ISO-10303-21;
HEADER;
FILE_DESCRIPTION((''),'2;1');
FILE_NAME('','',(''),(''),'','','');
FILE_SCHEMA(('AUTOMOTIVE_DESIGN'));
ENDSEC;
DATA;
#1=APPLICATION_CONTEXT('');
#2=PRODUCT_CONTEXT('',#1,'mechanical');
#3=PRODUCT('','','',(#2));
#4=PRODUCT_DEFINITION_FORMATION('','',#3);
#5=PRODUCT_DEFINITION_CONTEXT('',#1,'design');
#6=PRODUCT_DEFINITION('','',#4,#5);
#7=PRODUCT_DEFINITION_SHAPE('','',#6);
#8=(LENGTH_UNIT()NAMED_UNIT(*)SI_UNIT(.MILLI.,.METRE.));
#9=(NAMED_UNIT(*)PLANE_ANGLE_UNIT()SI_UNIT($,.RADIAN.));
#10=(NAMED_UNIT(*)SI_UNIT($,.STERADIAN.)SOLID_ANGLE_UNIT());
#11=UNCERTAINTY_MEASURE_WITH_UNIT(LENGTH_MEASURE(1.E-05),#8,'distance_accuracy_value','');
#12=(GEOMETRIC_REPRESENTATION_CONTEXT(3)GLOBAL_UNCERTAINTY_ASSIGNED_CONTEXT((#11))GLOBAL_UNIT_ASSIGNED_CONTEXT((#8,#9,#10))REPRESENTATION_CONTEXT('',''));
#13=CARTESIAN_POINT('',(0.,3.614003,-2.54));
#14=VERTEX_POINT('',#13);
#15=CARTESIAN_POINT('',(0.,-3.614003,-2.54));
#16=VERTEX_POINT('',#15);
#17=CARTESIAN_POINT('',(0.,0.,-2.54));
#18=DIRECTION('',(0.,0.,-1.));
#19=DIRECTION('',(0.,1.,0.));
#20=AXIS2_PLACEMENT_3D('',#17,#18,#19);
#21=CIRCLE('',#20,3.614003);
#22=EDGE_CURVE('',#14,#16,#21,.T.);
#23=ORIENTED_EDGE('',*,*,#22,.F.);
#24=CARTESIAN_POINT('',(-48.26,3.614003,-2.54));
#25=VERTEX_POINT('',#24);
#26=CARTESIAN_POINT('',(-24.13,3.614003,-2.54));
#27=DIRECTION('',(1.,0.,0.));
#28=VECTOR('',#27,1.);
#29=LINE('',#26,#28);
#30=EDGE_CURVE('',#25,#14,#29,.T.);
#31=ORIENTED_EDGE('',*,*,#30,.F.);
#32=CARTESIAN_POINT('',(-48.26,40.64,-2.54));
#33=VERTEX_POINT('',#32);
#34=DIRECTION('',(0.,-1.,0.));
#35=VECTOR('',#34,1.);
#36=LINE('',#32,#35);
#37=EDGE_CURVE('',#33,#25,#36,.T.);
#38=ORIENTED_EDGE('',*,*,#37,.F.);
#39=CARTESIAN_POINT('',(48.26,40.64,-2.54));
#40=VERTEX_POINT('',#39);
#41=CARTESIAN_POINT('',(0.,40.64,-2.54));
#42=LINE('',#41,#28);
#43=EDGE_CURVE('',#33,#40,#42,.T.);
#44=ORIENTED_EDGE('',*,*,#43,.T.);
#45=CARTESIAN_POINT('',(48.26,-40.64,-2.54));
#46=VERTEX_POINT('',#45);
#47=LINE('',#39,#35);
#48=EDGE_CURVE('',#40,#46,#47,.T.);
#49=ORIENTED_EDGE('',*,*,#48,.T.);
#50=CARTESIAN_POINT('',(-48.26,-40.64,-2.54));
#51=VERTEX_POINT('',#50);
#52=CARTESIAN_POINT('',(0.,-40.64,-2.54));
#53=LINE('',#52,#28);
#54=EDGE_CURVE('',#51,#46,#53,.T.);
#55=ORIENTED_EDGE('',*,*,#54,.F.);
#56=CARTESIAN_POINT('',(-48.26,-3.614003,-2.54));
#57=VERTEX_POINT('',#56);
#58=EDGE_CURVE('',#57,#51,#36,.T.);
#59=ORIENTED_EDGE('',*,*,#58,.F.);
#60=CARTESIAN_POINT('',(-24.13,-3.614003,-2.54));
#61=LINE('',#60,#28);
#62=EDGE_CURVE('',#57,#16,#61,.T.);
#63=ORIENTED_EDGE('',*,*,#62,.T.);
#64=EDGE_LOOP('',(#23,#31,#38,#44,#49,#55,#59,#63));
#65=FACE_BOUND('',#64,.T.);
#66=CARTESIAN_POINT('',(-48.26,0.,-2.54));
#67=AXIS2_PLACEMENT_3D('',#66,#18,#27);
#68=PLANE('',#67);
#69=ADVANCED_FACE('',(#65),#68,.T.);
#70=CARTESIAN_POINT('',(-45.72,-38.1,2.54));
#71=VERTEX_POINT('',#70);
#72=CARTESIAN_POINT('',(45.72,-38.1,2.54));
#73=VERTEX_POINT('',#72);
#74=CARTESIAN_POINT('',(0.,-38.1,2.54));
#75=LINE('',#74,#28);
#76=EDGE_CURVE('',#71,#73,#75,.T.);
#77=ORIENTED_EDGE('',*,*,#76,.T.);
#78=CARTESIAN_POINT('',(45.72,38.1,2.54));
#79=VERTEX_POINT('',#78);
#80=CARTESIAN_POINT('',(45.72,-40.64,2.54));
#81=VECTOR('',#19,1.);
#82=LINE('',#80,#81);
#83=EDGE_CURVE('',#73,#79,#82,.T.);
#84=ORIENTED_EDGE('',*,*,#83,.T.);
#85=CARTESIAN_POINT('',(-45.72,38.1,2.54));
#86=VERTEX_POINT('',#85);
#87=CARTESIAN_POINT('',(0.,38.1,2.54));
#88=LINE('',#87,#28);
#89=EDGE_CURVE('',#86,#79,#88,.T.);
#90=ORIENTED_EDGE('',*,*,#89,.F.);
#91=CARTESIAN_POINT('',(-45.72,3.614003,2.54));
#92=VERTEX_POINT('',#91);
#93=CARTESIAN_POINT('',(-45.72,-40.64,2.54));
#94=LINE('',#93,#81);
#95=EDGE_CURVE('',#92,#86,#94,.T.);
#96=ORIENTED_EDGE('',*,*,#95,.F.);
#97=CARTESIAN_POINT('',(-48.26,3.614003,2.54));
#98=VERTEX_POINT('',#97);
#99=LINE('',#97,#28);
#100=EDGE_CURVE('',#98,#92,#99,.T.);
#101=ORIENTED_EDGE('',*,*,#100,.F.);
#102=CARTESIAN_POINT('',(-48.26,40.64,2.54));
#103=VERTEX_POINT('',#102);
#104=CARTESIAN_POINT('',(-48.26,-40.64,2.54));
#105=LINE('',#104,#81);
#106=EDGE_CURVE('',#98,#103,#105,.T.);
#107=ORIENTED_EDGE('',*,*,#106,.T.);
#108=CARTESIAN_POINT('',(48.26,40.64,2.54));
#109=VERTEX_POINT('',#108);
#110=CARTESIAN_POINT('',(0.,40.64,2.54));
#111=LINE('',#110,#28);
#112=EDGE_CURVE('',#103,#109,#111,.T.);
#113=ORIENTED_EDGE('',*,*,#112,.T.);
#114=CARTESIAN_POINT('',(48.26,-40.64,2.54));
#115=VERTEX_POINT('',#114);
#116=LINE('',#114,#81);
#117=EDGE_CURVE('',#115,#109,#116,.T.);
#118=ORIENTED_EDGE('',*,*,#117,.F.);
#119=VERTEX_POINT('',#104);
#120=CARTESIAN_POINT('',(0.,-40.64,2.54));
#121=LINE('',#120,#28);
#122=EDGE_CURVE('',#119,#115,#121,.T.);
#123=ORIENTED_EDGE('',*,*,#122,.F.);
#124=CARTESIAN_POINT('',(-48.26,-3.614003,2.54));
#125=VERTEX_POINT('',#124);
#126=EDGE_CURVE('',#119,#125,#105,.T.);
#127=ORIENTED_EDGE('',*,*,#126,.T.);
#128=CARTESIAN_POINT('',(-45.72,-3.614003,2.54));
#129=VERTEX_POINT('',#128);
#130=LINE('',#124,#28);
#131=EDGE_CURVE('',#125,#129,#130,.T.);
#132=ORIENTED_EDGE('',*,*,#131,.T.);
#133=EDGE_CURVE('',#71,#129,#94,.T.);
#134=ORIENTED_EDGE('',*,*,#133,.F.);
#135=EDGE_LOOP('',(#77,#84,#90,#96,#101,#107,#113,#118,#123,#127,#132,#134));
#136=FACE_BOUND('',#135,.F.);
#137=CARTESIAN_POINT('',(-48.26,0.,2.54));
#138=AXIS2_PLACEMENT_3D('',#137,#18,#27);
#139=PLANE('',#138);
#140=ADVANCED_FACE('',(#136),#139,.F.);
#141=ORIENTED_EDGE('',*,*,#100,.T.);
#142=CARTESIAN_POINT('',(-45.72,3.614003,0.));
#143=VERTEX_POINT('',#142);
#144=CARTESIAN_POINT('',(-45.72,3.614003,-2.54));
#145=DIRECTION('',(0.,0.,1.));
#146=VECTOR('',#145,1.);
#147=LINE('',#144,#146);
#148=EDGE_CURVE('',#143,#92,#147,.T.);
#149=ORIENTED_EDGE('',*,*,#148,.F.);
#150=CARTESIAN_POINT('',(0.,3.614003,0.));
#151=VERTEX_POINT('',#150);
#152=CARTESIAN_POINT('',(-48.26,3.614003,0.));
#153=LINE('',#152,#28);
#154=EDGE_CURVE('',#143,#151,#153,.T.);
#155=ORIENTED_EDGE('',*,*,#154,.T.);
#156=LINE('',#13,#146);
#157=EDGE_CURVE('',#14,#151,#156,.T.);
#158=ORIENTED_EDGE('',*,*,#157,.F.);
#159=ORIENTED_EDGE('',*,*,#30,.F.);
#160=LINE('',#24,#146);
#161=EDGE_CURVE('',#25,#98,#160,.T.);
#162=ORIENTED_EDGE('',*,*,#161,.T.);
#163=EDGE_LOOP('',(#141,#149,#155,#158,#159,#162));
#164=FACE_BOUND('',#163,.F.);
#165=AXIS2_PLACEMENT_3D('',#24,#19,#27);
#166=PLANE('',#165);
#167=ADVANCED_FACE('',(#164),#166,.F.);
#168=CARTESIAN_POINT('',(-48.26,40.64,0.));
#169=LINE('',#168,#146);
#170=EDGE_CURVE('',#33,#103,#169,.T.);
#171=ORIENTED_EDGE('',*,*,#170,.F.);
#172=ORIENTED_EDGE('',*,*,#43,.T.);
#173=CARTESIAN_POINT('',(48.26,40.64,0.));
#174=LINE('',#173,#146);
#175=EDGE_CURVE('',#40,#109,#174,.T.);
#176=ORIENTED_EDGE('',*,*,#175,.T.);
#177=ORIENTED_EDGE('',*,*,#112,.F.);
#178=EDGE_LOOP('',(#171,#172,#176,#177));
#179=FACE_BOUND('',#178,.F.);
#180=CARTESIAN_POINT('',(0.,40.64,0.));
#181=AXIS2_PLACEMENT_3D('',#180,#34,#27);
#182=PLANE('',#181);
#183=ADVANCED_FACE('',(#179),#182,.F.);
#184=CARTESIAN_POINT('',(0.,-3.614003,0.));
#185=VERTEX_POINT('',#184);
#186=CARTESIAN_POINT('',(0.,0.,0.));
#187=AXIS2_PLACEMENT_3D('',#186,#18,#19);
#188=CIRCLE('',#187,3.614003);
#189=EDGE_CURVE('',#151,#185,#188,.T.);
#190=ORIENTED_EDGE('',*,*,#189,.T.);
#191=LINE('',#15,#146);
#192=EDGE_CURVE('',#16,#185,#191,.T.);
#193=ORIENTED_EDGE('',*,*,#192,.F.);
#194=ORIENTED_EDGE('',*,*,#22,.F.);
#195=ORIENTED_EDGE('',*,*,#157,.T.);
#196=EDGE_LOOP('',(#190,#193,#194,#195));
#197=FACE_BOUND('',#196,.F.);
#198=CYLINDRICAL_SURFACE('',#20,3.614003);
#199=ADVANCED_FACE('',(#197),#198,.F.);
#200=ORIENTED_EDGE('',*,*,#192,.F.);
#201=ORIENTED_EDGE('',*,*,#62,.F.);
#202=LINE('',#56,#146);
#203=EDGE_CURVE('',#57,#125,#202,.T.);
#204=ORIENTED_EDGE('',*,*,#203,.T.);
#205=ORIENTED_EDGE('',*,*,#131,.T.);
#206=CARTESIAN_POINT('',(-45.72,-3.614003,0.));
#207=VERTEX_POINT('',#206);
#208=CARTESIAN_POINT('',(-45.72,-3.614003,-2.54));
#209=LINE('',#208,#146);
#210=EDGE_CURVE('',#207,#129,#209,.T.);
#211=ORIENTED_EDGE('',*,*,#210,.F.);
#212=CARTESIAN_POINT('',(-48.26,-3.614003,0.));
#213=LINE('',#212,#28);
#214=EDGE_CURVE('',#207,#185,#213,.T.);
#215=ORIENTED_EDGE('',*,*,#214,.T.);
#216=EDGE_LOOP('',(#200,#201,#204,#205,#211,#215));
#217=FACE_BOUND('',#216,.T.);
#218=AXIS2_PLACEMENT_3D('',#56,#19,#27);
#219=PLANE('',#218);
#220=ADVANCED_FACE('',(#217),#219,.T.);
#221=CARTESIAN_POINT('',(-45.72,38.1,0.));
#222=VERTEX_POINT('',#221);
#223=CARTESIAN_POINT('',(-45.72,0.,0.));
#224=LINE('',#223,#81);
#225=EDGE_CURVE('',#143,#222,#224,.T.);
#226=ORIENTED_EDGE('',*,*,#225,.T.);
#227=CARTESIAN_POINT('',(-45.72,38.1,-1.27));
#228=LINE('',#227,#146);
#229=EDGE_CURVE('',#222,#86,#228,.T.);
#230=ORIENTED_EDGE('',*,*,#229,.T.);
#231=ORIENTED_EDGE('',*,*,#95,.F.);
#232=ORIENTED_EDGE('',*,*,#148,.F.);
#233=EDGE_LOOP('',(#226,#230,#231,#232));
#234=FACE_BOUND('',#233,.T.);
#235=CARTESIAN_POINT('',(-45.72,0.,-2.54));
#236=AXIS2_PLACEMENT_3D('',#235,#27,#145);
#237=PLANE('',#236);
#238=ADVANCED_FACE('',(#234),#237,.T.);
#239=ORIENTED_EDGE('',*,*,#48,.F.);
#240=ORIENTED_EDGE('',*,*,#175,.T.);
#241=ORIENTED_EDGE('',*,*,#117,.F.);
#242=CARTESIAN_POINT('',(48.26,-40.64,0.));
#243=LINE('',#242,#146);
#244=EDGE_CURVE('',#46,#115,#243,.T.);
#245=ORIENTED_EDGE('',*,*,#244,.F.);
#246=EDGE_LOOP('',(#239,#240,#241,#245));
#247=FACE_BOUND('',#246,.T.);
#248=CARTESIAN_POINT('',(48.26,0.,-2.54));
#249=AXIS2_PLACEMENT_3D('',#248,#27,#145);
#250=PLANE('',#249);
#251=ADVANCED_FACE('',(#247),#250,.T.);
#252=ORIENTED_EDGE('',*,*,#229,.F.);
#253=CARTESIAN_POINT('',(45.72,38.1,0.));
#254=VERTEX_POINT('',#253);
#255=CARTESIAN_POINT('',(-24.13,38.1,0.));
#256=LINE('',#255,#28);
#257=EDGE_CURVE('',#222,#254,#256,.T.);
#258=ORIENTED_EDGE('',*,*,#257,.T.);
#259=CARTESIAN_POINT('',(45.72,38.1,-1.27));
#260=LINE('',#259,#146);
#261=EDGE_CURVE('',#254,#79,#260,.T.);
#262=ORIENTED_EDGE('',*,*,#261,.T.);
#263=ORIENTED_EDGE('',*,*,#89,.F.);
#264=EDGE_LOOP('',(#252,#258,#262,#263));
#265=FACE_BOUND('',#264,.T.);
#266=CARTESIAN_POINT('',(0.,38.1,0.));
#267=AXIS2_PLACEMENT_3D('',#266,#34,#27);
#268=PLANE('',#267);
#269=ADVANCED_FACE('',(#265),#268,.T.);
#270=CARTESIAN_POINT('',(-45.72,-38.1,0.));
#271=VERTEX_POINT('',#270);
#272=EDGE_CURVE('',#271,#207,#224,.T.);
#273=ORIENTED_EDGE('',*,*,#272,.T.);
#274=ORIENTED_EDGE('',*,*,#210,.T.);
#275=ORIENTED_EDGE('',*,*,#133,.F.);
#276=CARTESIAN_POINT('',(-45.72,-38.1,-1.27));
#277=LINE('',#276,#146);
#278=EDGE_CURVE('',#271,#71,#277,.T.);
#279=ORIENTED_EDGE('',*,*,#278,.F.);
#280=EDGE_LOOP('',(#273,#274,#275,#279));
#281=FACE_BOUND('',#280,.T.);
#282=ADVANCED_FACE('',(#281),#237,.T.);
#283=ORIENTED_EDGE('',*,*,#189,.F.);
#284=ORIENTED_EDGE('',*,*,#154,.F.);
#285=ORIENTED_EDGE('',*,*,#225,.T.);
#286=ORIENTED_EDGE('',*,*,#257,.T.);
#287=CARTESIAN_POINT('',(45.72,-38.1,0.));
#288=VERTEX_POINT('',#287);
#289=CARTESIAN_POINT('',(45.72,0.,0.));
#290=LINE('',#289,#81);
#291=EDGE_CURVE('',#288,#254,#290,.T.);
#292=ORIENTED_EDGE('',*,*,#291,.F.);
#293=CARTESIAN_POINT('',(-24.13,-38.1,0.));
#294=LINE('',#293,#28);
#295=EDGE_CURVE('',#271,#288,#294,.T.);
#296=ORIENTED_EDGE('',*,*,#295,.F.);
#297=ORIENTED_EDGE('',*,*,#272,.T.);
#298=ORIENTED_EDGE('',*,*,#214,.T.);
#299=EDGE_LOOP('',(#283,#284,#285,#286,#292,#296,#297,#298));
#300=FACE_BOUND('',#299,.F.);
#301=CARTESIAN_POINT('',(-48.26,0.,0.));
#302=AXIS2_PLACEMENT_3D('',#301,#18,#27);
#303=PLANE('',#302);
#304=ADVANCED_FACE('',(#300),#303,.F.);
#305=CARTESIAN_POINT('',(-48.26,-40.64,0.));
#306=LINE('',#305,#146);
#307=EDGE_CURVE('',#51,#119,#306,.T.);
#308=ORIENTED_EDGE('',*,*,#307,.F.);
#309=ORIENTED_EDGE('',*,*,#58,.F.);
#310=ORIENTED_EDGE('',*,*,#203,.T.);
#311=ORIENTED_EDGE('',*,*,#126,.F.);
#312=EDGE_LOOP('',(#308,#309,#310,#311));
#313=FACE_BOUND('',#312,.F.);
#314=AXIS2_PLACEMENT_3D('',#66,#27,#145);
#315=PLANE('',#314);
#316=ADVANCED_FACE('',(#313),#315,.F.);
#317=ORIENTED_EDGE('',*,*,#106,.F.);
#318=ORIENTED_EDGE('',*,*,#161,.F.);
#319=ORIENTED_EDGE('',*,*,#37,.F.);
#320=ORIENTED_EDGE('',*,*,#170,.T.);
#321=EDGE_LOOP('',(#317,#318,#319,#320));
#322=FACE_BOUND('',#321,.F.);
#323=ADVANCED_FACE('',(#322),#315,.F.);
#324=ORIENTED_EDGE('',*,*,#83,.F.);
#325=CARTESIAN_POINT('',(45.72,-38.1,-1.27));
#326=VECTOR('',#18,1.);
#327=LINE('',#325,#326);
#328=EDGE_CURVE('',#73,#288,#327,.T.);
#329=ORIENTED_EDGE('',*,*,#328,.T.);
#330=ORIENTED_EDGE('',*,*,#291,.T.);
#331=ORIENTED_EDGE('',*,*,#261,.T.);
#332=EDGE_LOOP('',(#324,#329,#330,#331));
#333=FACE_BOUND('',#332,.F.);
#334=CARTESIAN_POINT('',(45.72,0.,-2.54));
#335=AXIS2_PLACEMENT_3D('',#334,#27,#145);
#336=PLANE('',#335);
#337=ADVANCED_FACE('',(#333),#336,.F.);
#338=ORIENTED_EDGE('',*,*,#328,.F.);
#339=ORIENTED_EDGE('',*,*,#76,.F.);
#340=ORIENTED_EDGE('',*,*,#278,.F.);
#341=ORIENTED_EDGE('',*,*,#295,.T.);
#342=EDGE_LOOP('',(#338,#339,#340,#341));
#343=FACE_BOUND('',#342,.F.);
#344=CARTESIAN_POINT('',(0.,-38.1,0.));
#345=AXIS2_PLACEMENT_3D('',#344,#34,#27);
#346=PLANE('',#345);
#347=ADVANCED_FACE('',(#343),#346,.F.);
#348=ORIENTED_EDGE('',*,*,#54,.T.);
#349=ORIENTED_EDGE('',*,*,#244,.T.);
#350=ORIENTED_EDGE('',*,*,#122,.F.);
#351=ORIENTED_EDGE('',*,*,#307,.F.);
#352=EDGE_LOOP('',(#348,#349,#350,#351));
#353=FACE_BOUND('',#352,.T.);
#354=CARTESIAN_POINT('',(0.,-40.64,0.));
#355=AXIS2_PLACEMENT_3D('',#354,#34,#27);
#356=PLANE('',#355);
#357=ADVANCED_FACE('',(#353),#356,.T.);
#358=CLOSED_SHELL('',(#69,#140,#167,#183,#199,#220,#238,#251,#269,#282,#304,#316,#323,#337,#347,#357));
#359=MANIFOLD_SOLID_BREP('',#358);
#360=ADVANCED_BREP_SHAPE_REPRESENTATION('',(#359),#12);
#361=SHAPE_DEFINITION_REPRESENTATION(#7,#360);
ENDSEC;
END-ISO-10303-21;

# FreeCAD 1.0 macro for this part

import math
import FreeCAD as App
import Part
import Sketcher
Q = App.Units.Quantity


def faces_at(feature, points):
    """Names of the faces that lie closest to the given points."""
    faces = feature.Shape.Faces
    near = lambda p: min(range(len(faces)), key=lambda i: faces[i].distToShape(Part.Vertex(*p))[0])
    return sorted({f"Face{near(p) + 1}" for p in points})

doc = App.newDocument("Part")
body = doc.addObject("PartDesign::Body", "Body")

# Sketch on XZ plane
sketch1 = doc.addObject("Sketcher::SketchObject", "Sketch")
body.addObject(sketch1)
sketch1.AttachmentSupport = (doc.XZ_Plane, [""])
sketch1.MapMode = "FlatFace"
sketch1.addGeometry(Part.LineSegment(App.Vector(-48, 3, 0), App.Vector(-48, -3, 0)), False)
sketch1.addGeometry(Part.LineSegment(App.Vector(-48, -3, 0), App.Vector(48, -3, 0)), False)
sketch1.addGeometry(Part.LineSegment(App.Vector(48, -3, 0), App.Vector(48, 3, 0)), False)
sketch1.addGeometry(Part.LineSegment(App.Vector(48, 3, 0), App.Vector(-48, 3, 0)), False)
sketch1.addConstraint(Sketcher.Constraint("Coincident", 0, 2, 1, 1))
sketch1.addConstraint(Sketcher.Constraint("Coincident", 1, 2, 2, 1))
sketch1.addConstraint(Sketcher.Constraint("Coincident", 2, 2, 3, 1))
sketch1.addConstraint(Sketcher.Constraint("Coincident", 3, 2, 0, 1))
sketch1.addConstraint(Sketcher.Constraint("Vertical", 0))
sketch1.addConstraint(Sketcher.Constraint("Horizontal", 1))
sketch1.addConstraint(Sketcher.Constraint("Vertical", 2))
sketch1.addConstraint(Sketcher.Constraint("Horizontal", 3))
sketch1.addConstraint(Sketcher.Constraint("Symmetric", 0, 2, 2, 2, -1, 1))
sketch1.addConstraint(Sketcher.Constraint("DistanceX", 1, 1, 1, 2, Q("3.8 in")))
sketch1.addConstraint(Sketcher.Constraint("DistanceY", 0, 2, 0, 1, Q("0.2 in")))
pad1 = doc.addObject("PartDesign::Pad", "Pad")
body.addObject(pad1)
pad1.Profile = sketch1
pad1.Length = Q("3.2 in")
pad1.Midplane = True
doc.recompute()

thickness = doc.addObject("PartDesign::Thickness", "Thickness")
body.addObject(thickness)
thickness.Base = (pad1, faces_at(pad1, [(0, 0, 2.54)]))
thickness.Value = Q("0.1 in")
thickness.Reversed = True
thickness.Join = "Arc"

# Sketch on XY plane
sketch2 = doc.addObject("Sketcher::SketchObject", "Sketch001")
body.addObject(sketch2)
sketch2.AttachmentSupport = (doc.XY_Plane, [""])
sketch2.MapMode = "FlatFace"
sketch2.AttachmentOffset = App.Placement(App.Vector(0, 0, -0.1 * 25.4), App.Rotation())
sketch2.addGeometry(Part.ArcOfCircle(Part.Circle(App.Vector(0, 0, 0), App.Vector(0, 0, 1), 3.6), math.radians(-90), math.radians(90)), False)
sketch2.addGeometry(Part.LineSegment(App.Vector(0, -3.6, 0), App.Vector(-48.3, -3.6, 0)), False)
sketch2.addGeometry(Part.LineSegment(App.Vector(-48.3, -3.6, 0), App.Vector(-48.3, 3.6, 0)), False)
sketch2.addGeometry(Part.LineSegment(App.Vector(-48.3, 3.6, 0), App.Vector(0, 3.6, 0)), False)
sketch2.addConstraint(Sketcher.Constraint("Tangent", 0, 1, 1, 1))
sketch2.addConstraint(Sketcher.Constraint("Coincident", 1, 2, 2, 1))
sketch2.addConstraint(Sketcher.Constraint("Coincident", 2, 2, 3, 1))
sketch2.addConstraint(Sketcher.Constraint("Tangent", 3, 2, 0, 2))
sketch2.addConstraint(Sketcher.Constraint("Horizontal", 1))
sketch2.addConstraint(Sketcher.Constraint("Vertical", 2))
sketch2.addConstraint(Sketcher.Constraint("Horizontal", 3))
sketch2.addConstraint(Sketcher.Constraint("Coincident", 0, 3, -1, 1))
sketch2.addConstraint(Sketcher.Constraint("DistanceX", 1, 2, 1, 1, Q("1.9 in")))
sketch2.addConstraint(Sketcher.Constraint("Radius", 0, Q("3.614003 mm")))
pocket1 = doc.addObject("PartDesign::Pocket", "Pocket")
body.addObject(pocket1)
pocket1.Profile = sketch2
pocket1.Type = "ThroughAll"
pocket1.Reversed = True

doc.recompute()
